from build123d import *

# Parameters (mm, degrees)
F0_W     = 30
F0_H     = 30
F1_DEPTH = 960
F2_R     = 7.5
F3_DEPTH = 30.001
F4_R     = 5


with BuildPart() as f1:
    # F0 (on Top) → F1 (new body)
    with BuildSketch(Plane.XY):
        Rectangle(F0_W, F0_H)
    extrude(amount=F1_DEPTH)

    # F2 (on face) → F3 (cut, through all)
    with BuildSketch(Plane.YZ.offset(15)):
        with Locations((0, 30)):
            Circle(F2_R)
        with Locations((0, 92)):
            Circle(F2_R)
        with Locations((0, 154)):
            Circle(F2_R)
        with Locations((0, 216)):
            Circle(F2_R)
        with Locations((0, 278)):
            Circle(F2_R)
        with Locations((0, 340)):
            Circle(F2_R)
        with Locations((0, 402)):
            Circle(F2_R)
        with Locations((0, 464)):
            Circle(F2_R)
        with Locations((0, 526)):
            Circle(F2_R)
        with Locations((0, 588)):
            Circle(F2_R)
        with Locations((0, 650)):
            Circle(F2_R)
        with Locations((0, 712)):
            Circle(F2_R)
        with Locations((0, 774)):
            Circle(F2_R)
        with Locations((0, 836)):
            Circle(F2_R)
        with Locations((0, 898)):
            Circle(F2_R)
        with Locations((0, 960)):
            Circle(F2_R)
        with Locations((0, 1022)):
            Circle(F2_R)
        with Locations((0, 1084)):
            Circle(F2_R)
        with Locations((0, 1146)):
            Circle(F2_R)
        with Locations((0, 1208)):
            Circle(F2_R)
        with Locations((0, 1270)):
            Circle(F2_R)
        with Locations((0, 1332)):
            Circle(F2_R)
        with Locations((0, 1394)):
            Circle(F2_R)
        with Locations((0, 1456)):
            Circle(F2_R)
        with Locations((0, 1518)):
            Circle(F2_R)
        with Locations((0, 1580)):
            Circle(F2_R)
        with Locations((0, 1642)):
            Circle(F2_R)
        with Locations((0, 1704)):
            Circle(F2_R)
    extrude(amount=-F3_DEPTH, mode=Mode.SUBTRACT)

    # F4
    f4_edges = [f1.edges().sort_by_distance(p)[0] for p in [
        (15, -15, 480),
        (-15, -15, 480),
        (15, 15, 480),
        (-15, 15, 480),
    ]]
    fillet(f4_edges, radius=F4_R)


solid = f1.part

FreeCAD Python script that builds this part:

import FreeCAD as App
import Part
import Sketcher

V = App.Vector


def edges_at(feature, points):
    """Names of the edges that pass closest to the given points."""
    edges = feature.Shape.Edges
    near = lambda p: min(range(len(edges)), key=lambda i: edges[i].distToShape(Part.Vertex(*p))[0])
    return sorted({f"Edge{near(p) + 1}" for p in points})


def add_polygon(sketch, points):
    """Adds a closed chain of lines whose ends are joined by coincident constraints."""
    first, n = sketch.GeometryCount, len(points)
    for a, b in zip(points, points[1:] + points[:1]):
        sketch.addGeometry(Part.LineSegment(App.Vector(*a, 0), App.Vector(*b, 0)), False)
    for i in range(n):
        sketch.addConstraint(Sketcher.Constraint("Coincident", first + i, 2, first + (i + 1) % n, 1))

doc = App.newDocument("Part")
body = doc.addObject("PartDesign::Body", "Body")

sketch1 = body.newObject("Sketcher::SketchObject", "Sketch")
sketch1.AttachmentSupport = (doc.getObject("XY_Plane"), [""])
sketch1.MapMode = "FlatFace"
add_polygon(sketch1, [(-15, 15), (-15, -15), (15, -15), (15, 15)])
sketch1.addConstraint([
    Sketcher.Constraint("Vertical", 0),
    Sketcher.Constraint("Horizontal", 1),
    Sketcher.Constraint("Vertical", 2),
    Sketcher.Constraint("Horizontal", 3),
    Sketcher.Constraint("Symmetric", 0, 2, 2, 2, -1, 1),
    Sketcher.Constraint("Equal", 3, 0),
    Sketcher.Constraint("DistanceX", 1, 1, 1, 2, 30.0),
])
pad1 = body.newObject("PartDesign::Pad", "Pad")
pad1.Profile = sketch1
pad1.Length = 960

sketch2 = body.newObject("Sketcher::SketchObject", "Sketch001")
sketch2.AttachmentSupport = (doc.getObject("YZ_Plane"), [""])
sketch2.MapMode = "FlatFace"
sketch2.AttachmentOffset = App.Placement(V(0, 0, 15), App.Rotation())
sketch2.addGeometry([
    Part.Circle(V(0, 30, 0), V(0, 0, 1), 8),
    Part.Circle(V(0, 92, 0), V(0, 0, 1), 8),
    Part.Circle(V(0, 154, 0), V(0, 0, 1), 8),
    Part.Circle(V(0, 216, 0), V(0, 0, 1), 8),
    Part.Circle(V(0, 278, 0), V(0, 0, 1), 8),
    Part.Circle(V(0, 340, 0), V(0, 0, 1), 8),
    Part.Circle(V(0, 402, 0), V(0, 0, 1), 8),
    Part.Circle(V(0, 464, 0), V(0, 0, 1), 8),
    Part.Circle(V(0, 526, 0), V(0, 0, 1), 8),
    Part.Circle(V(0, 588, 0), V(0, 0, 1), 8),
    Part.Circle(V(0, 650, 0), V(0, 0, 1), 8),
    Part.Circle(V(0, 712, 0), V(0, 0, 1), 8),
    Part.Circle(V(0, 774, 0), V(0, 0, 1), 8),
    Part.Circle(V(0, 836, 0), V(0, 0, 1), 8),
    Part.Circle(V(0, 898, 0), V(0, 0, 1), 8),
    Part.Circle(V(0, 960, 0), V(0, 0, 1), 8),
    Part.Circle(V(0, 1022, 0), V(0, 0, 1), 8),
    Part.Circle(V(0, 1084, 0), V(0, 0, 1), 8),
    Part.Circle(V(0, 1146, 0), V(0, 0, 1), 8),
    Part.Circle(V(0, 1208, 0), V(0, 0, 1), 8),
    Part.Circle(V(0, 1270, 0), V(0, 0, 1), 8),
    Part.Circle(V(0, 1332, 0), V(0, 0, 1), 8),
    Part.Circle(V(0, 1394, 0), V(0, 0, 1), 8),
    Part.Circle(V(0, 1456, 0), V(0, 0, 1), 8),
    Part.Circle(V(0, 1518, 0), V(0, 0, 1), 8),
    Part.Circle(V(0, 1580, 0), V(0, 0, 1), 8),
    Part.Circle(V(0, 1642, 0), V(0, 0, 1), 8),
    Part.Circle(V(0, 1704, 0), V(0, 0, 1), 8),
], False)
sketch2.addConstraint([
    Sketcher.Constraint("Equal", 0, 1),
    Sketcher.Constraint("Equal", 1, 2),
    Sketcher.Constraint("Equal", 2, 3),
    Sketcher.Constraint("Equal", 3, 4),
    Sketcher.Constraint("Equal", 4, 5),
    Sketcher.Constraint("Equal", 5, 6),
    Sketcher.Constraint("Equal", 6, 7),
    Sketcher.Constraint("Equal", 7, 8),
    Sketcher.Constraint("Equal", 8, 9),
    Sketcher.Constraint("Equal", 9, 10),
    Sketcher.Constraint("Equal", 10, 11),
    Sketcher.Constraint("Equal", 11, 12),
    Sketcher.Constraint("Equal", 12, 13),
    Sketcher.Constraint("Equal", 13, 14),
    Sketcher.Constraint("Equal", 14, 15),
    Sketcher.Constraint("Equal", 15, 16),
    Sketcher.Constraint("Equal", 16, 17),
    Sketcher.Constraint("Equal", 17, 18),
    Sketcher.Constraint("Equal", 18, 19),
    Sketcher.Constraint("Equal", 19, 20),
    Sketcher.Constraint("Equal", 20, 21),
    Sketcher.Constraint("Equal", 21, 22),
    Sketcher.Constraint("Equal", 22, 23),
    Sketcher.Constraint("Equal", 23, 24),
    Sketcher.Constraint("Equal", 24, 25),
    Sketcher.Constraint("Equal", 25, 26),
    Sketcher.Constraint("Equal", 26, 27),
    Sketcher.Constraint("PointOnObject", 0, 3, -2),
    Sketcher.Constraint("PointOnObject", 1, 3, -2),
    Sketcher.Constraint("PointOnObject", 2, 3, -2),
    Sketcher.Constraint("PointOnObject", 3, 3, -2),
    Sketcher.Constraint("PointOnObject", 4, 3, -2),
    Sketcher.Constraint("PointOnObject", 5, 3, -2),
    Sketcher.Constraint("PointOnObject", 6, 3, -2),
    Sketcher.Constraint("PointOnObject", 7, 3, -2),
    Sketcher.Constraint("PointOnObject", 8, 3, -2),
    Sketcher.Constraint("PointOnObject", 9, 3, -2),
    Sketcher.Constraint("PointOnObject", 10, 3, -2),
    Sketcher.Constraint("PointOnObject", 11, 3, -2),
    Sketcher.Constraint("PointOnObject", 12, 3, -2),
    Sketcher.Constraint("PointOnObject", 13, 3, -2),
    Sketcher.Constraint("PointOnObject", 14, 3, -2),
    Sketcher.Constraint("PointOnObject", 15, 3, -2),
    Sketcher.Constraint("PointOnObject", 16, 3, -2),
    Sketcher.Constraint("PointOnObject", 17, 3, -2),
    Sketcher.Constraint("PointOnObject", 18, 3, -2),
    Sketcher.Constraint("PointOnObject", 19, 3, -2),
    Sketcher.Constraint("PointOnObject", 20, 3, -2),
    Sketcher.Constraint("PointOnObject", 21, 3, -2),
    Sketcher.Constraint("PointOnObject", 22, 3, -2),
    Sketcher.Constraint("PointOnObject", 23, 3, -2),
    Sketcher.Constraint("PointOnObject", 24, 3, -2),
    Sketcher.Constraint("PointOnObject", 25, 3, -2),
    Sketcher.Constraint("PointOnObject", 26, 3, -2),
    Sketcher.Constraint("PointOnObject", 27, 3, -2),
    Sketcher.Constraint("Diameter", 0, 15.0),
    Sketcher.Constraint("DistanceY", -1, 1, 0, 3, 30.0),
    Sketcher.Constraint("DistanceY", -1, 1, 1, 3, 92.0),
    Sketcher.Constraint("DistanceY", -1, 1, 2, 3, 154.0),
    Sketcher.Constraint("DistanceY", -1, 1, 3, 3, 216.0),
    Sketcher.Constraint("DistanceY", -1, 1, 4, 3, 278.0),
    Sketcher.Constraint("DistanceY", -1, 1, 5, 3, 340.0),
    Sketcher.Constraint("DistanceY", -1, 1, 6, 3, 402.0),
    Sketcher.Constraint("DistanceY", -1, 1, 7, 3, 464.0),
    Sketcher.Constraint("DistanceY", -1, 1, 8, 3, 526.0),
    Sketcher.Constraint("DistanceY", -1, 1, 9, 3, 588.0),
    Sketcher.Constraint("DistanceY", -1, 1, 10, 3, 650.0),
    Sketcher.Constraint("DistanceY", -1, 1, 11, 3, 712.0),
    Sketcher.Constraint("DistanceY", -1, 1, 12, 3, 774.0),
    Sketcher.Constraint("DistanceY", -1, 1, 13, 3, 836.0),
    Sketcher.Constraint("DistanceY", -1, 1, 14, 3, 898.0),
    Sketcher.Constraint("DistanceY", -1, 1, 15, 3, 960.0),
    Sketcher.Constraint("DistanceY", -1, 1, 16, 3, 1022.0),
    Sketcher.Constraint("DistanceY", -1, 1, 17, 3, 1084.0),
    Sketcher.Constraint("DistanceY", -1, 1, 18, 3, 1146.0),
    Sketcher.Constraint("DistanceY", -1, 1, 19, 3, 1208.0),
    Sketcher.Constraint("DistanceY", -1, 1, 20, 3, 1270.0),
    Sketcher.Constraint("DistanceY", -1, 1, 21, 3, 1332.0),
    Sketcher.Constraint("DistanceY", -1, 1, 22, 3, 1394.0),
    Sketcher.Constraint("DistanceY", -1, 1, 23, 3, 1456.0),
    Sketcher.Constraint("DistanceY", -1, 1, 24, 3, 1518.0),
    Sketcher.Constraint("DistanceY", -1, 1, 25, 3, 1580.0),
    Sketcher.Constraint("DistanceY", -1, 1, 26, 3, 1642.0),
    Sketcher.Constraint("DistanceY", -1, 1, 27, 3, 1704.0),
])
pocket1 = body.newObject("PartDesign::Pocket", "Pocket")
pocket1.Profile = sketch2
pocket1.Type = "ThroughAll"
doc.recompute()

fillet = body.newObject("PartDesign::Fillet", "Fillet")
fillet.Base = (pocket1, edges_at(pocket1, [
    (15, -15, 480),
    (-15, -15, 480),
    (15, 15, 480),
    (-15, 15, 480),
]))
fillet.Radius = 5

doc.recompute()
